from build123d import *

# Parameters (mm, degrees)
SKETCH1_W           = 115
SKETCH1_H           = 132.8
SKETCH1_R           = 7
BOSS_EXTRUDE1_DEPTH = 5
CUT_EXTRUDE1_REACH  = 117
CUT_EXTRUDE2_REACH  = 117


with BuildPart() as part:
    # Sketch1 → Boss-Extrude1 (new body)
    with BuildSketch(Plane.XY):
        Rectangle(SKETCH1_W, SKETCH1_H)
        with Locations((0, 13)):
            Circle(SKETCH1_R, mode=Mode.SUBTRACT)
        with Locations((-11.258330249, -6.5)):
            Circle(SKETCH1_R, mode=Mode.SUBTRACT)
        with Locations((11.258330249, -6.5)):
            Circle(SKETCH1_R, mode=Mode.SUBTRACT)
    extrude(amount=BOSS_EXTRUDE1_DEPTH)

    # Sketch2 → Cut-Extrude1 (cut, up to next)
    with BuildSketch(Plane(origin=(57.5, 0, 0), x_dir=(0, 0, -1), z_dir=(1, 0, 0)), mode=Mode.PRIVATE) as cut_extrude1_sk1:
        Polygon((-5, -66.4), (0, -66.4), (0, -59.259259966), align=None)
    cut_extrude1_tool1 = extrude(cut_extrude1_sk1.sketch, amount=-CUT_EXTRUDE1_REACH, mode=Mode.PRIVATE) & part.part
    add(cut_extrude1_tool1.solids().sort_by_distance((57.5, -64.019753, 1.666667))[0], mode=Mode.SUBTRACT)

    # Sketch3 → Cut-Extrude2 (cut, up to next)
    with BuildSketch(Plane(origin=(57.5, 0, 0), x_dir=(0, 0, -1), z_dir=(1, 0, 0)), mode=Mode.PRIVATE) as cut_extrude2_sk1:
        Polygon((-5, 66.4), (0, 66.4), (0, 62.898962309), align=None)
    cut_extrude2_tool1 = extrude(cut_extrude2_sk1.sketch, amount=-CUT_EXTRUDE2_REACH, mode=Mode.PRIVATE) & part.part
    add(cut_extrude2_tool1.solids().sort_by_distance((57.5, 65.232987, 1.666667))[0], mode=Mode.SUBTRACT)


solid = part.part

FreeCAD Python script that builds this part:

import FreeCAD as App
import Part
import Sketcher
from FreeCAD import Vector
Q = App.Units.Quantity


def add_polygon(sketch, points):
    """Adds a closed chain of lines whose ends are joined by coincident constraints."""
    first, n = sketch.GeometryCount, len(points)
    for a, b in zip(points, points[1:] + points[:1]):
        sketch.addGeometry(Part.LineSegment(App.Vector(*a, 0), App.Vector(*b, 0)), False)
    for i in range(n):
        sketch.addConstraint(Sketcher.Constraint("Coincident", first + i, 2, first + (i + 1) % n, 1))

doc = App.newDocument("Part")
body = doc.addObject("PartDesign::Body", "Body")

# Sketch on XY plane
sketch1 = body.newObject("Sketcher::SketchObject", "Sketch")
sketch1.AttachmentSupport = (doc.getObject("XY_Plane"), [""])
sketch1.MapMode = "FlatFace"
add_polygon(sketch1, [(-57.5, 66.4), (-57.5, -66.4), (57.5, -66.4), (57.5, 66.4)])  # lines 0-3
sketch1.addGeometry(Part.Circle(Vector(-11.25833, -6.5, 0), Vector(0, 0, 1), 7), False)  # 4
sketch1.addGeometry(Part.Circle(Vector(11.25833, -6.5, 0), Vector(0, 0, 1), 7), False)  # 5
sketch1.addGeometry(Part.Circle(Vector(0, 13, 0), Vector(0, 0, 1), 7), False)  # 6
sketch1.addConstraint(Sketcher.Constraint("Vertical", 0))
sketch1.addConstraint(Sketcher.Constraint("Horizontal", 1))
sketch1.addConstraint(Sketcher.Constraint("Vertical", 2))
sketch1.addConstraint(Sketcher.Constraint("Horizontal", 3))
sketch1.addConstraint(Sketcher.Constraint("Equal", 4, 5))
sketch1.addConstraint(Sketcher.Constraint("Equal", 5, 6))
sketch1.addConstraint(Sketcher.Constraint("Symmetric", 0, 2, 2, 2, -1, 1))
sketch1.addConstraint(Sketcher.Constraint("Symmetric", 4, 3, 5, 3, -2))
sketch1.addConstraint(Sketcher.Constraint("PointOnObject", 6, 3, -2))
sketch1.addConstraint(Sketcher.Constraint("Diameter", 4, 14.0))
sketch1.addConstraint(Sketcher.Constraint("DistanceX", 1, 1, 1, 2, 115.0))
sketch1.addConstraint(Sketcher.Constraint("DistanceY", 0, 2, 0, 1, 132.8))
sketch1.addConstraint(Sketcher.Constraint("DistanceY", -1, 1, 6, 3, 13.0))
sketch1.addConstraint(Sketcher.Constraint("DistanceY", 4, 3, -1, 1, 6.5))
sketch1.addConstraint(Sketcher.Constraint("DistanceX", 4, 3, -1, 1, 11.25833))
pad1 = body.newObject("PartDesign::Pad", "Pad")
pad1.Profile = sketch1
pad1.Length = 5

# Sketch on YZ plane
sketch2 = body.newObject("Sketcher::SketchObject", "Sketch001")
sketch2.AttachmentSupport = (doc.getObject("YZ_Plane"), [""])
sketch2.MapMode = "FlatFace"
sketch2.AttachmentOffset = App.Placement(Vector(0, 0, 57.5), App.Rotation())
add_polygon(sketch2, [(-66.4, 5), (-66.4, 0), (-59.25926, 0)])  # lines 0-2
sketch2.addConstraint(Sketcher.Constraint("Vertical", 0))
sketch2.addConstraint(Sketcher.Constraint("Horizontal", 1))
sketch2.addConstraint(Sketcher.Constraint("PointOnObject", 0, 2, -1))
sketch2.addConstraint(Sketcher.Constraint("DistanceY", 0, 2, 0, 1, 5.0))
sketch2.addConstraint(Sketcher.Constraint("Angle", 2, Q("145 deg")))
sketch2.addConstraint(Sketcher.Constraint("DistanceX", 0, 2, -1, 1, 66.4))
pocket1 = body.newObject("PartDesign::Pocket", "Pocket")
pocket1.Profile = sketch2
pocket1.Type = "UpToFirst"

# Sketch on YZ plane
sketch3 = body.newObject("Sketcher::SketchObject", "Sketch002")
sketch3.AttachmentSupport = (doc.getObject("YZ_Plane"), [""])
sketch3.MapMode = "FlatFace"
sketch3.AttachmentOffset = App.Placement(Vector(0, 0, 57.5), App.Rotation())
add_polygon(sketch3, [(66.4, 0), (66.4, 5), (62.898962, 0)])  # lines 0-2
sketch3.addConstraint(Sketcher.Constraint("Vertical", 0))
sketch3.addConstraint(Sketcher.Constraint("Horizontal", 2))
sketch3.addConstraint(Sketcher.Constraint("PointOnObject", 1, 2, -1))
sketch3.addConstraint(Sketcher.Constraint("DistanceY", 0, 1, 0, 2, 5.0))
sketch3.addConstraint(Sketcher.Constraint("Angle", 1, Q("-125 deg")))
sketch3.addConstraint(Sketcher.Constraint("DistanceX", -1, 1, 0, 2, 66.4))
pocket2 = body.newObject("PartDesign::Pocket", "Pocket001")
pocket2.Profile = sketch3
pocket2.Type = "UpToFirst"

doc.recompute()
